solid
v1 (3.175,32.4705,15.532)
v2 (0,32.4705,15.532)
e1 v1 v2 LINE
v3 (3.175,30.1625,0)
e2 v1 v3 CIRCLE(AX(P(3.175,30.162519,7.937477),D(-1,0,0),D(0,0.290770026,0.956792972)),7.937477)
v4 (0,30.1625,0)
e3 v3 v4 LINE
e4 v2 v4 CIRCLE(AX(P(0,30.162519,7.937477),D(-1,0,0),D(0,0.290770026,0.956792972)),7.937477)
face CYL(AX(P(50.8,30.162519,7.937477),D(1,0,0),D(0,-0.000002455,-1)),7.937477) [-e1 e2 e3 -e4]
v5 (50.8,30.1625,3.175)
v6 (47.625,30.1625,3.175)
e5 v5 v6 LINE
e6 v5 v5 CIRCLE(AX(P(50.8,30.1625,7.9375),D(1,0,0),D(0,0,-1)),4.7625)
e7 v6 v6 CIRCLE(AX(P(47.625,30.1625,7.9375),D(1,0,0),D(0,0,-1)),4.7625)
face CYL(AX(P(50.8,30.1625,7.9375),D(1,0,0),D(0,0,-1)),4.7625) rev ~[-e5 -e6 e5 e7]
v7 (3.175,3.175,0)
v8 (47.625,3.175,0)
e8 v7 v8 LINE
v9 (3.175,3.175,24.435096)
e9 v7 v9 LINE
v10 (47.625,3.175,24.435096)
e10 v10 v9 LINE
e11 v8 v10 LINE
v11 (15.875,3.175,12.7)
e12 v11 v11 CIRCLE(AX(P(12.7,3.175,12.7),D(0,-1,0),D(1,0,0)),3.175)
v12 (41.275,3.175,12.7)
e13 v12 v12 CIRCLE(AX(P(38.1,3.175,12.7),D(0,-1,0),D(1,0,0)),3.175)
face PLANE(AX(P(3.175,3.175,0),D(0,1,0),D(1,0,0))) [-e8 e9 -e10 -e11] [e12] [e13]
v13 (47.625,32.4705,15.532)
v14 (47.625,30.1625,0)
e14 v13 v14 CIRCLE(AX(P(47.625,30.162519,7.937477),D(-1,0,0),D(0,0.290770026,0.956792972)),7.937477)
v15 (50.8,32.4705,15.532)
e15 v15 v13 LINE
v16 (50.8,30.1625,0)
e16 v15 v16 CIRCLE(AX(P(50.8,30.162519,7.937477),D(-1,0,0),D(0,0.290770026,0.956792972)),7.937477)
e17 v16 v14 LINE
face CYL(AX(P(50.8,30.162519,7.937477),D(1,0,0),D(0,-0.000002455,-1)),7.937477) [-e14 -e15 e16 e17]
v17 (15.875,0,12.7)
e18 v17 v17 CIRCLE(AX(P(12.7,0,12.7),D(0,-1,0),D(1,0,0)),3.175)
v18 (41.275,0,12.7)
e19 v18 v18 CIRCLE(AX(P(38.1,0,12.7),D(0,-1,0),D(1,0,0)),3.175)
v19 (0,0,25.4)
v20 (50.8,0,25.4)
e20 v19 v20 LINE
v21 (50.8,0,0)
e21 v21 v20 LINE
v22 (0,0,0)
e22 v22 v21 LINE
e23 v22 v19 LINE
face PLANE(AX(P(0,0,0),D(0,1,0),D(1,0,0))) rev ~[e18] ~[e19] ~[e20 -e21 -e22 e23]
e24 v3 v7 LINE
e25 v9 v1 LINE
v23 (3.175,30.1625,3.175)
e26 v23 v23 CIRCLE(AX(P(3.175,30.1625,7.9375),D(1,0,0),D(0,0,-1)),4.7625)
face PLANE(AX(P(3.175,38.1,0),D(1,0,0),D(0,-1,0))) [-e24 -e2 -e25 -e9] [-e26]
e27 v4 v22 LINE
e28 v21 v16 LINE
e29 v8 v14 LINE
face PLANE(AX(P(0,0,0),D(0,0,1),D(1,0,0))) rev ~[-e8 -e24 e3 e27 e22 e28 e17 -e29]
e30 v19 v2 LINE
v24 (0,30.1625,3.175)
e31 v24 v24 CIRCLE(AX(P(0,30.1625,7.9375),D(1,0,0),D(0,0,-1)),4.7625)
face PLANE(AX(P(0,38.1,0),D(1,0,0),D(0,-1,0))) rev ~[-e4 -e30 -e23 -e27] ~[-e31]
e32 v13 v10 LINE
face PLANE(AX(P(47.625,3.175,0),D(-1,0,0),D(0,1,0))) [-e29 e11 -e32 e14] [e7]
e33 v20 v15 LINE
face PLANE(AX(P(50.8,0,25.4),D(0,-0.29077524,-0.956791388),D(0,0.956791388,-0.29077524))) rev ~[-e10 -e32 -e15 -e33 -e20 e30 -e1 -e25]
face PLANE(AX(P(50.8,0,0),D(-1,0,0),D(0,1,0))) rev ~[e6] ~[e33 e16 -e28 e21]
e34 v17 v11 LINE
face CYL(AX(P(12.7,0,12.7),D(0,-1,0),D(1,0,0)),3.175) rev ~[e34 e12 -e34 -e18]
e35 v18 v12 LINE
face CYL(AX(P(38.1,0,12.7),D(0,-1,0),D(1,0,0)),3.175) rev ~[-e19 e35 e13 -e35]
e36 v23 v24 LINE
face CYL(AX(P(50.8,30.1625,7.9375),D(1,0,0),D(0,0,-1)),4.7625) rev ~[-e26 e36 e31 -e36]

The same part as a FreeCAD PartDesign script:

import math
import FreeCAD as App
import Part
import Sketcher
Q = App.Units.Quantity


def add_polygon(sketch, points):
    """Adds a closed chain of lines whose ends are joined by coincident constraints."""
    first, n = sketch.GeometryCount, len(points)
    for a, b in zip(points, points[1:] + points[:1]):
        sketch.addGeometry(Part.LineSegment(App.Vector(*a, 0), App.Vector(*b, 0)), False)
    for i in range(n):
        sketch.addConstraint(Sketcher.Constraint("Coincident", first + i, 2, first + (i + 1) % n, 1))

doc = App.newDocument("Part")
body = doc.addObject("PartDesign::Body", "Body")

# Sketch on XY plane
sketch1 = body.newObject("Sketcher::SketchObject", "Sketch")
sketch1.AttachmentSupport = (doc.getObject("XY_Plane"), [""])
sketch1.MapMode = "FlatFace"
add_polygon(sketch1, [(0, 38.1), (0, 0), (50.8, 0), (50.8, 38.1), (47.6, 38.1), (47.6, 3.2), (3.2, 3.2), (3.2, 38.1)])  # lines 0-7
sketch1.addConstraint([
    Sketcher.Constraint("Vertical", 0),
    Sketcher.Constraint("Horizontal", 1),
    Sketcher.Constraint("Vertical", 2),
    Sketcher.Constraint("Horizontal", 3),
    Sketcher.Constraint("Vertical", 4),
    Sketcher.Constraint("Horizontal", 5),
    Sketcher.Constraint("Vertical", 6),
    Sketcher.Constraint("Horizontal", 7),
    Sketcher.Constraint("Coincident", 0, 2, -1, 1),
    Sketcher.Constraint("Horizontal", 3, 2, 6, 2),
    Sketcher.Constraint("Equal", 3, 7),
    Sketcher.Constraint("DistanceX", 1, 1, 1, 2, Q("2 in")),
    Sketcher.Constraint("DistanceY", 0, 2, 0, 1, Q("1.5 in")),
    Sketcher.Constraint("DistanceX", 3, 2, 3, 1, Q("0.125 in")),
    Sketcher.Constraint("DistanceY", -1, 1, 4, 2, Q("0.125 in")),
])
pad1 = body.newObject("PartDesign::Pad", "Pad")
pad1.Profile = sketch1
pad1.Length = Q("1 in")

# Sketch on YZ plane
sketch2 = body.newObject("Sketcher::SketchObject", "Sketch001")
sketch2.AttachmentSupport = (doc.getObject("YZ_Plane"), [""])
sketch2.MapMode = "FlatFace"
sketch2.AttachmentOffset = App.Placement(App.Vector(0, 0, 2 * 25.4), App.Rotation())
sketch2.addGeometry([
    Part.LineSegment(App.Vector(38.1, 7.9, 0), App.Vector(38.1, 25.4, 0)),  # 0
    Part.LineSegment(App.Vector(38.1, 25.4, 0), App.Vector(0, 25.4, 0)),  # 1
    Part.LineSegment(App.Vector(0, 25.4, 0), App.Vector(32.5, 15.5, 0)),  # 2
    Part.ArcOfCircle(Part.Circle(App.Vector(30.2, 7.9, 0), App.Vector(0, 0, 1), 7.9), math.radians(0), math.radians(73)),  # 3
    Part.LineSegment(App.Vector(38.1, 0, 0), App.Vector(38.1, 7.9, 0)),  # 4
    Part.ArcOfCircle(Part.Circle(App.Vector(30.2, 7.9, 0), App.Vector(0, 0, 1), 7.9), math.radians(-90), math.radians(0)),  # 5
    Part.LineSegment(App.Vector(30.2, 0, 0), App.Vector(38.1, 0, 0)),  # 6
    Part.Circle(App.Vector(30.2, 7.9, 0), App.Vector(0, 0, 1), 4.8),  # 7
], False)
sketch2.addConstraint([
    Sketcher.Constraint("Coincident", 0, 2, 1, 1),
    Sketcher.Constraint("Coincident", 1, 2, 2, 1),
    Sketcher.Constraint("Tangent", 2, 2, 3, 2),
    Sketcher.Constraint("Tangent", 3, 1, 0, 1),
    Sketcher.Constraint("Tangent", 4, 2, 5, 2),
    Sketcher.Constraint("Tangent", 5, 1, 6, 1),
    Sketcher.Constraint("Coincident", 6, 2, 4, 1),
    Sketcher.Constraint("Vertical", 0),
    Sketcher.Constraint("Horizontal", 1),
    Sketcher.Constraint("Vertical", 4),
    Sketcher.Constraint("Horizontal", 6),
    Sketcher.Constraint("Coincident", 5, 3, 3, 3),
    Sketcher.Constraint("Coincident", 7, 3, 3, 3),
    Sketcher.Constraint("Equal", 3, 5),
    Sketcher.Constraint("PointOnObject", 1, 2, -2),
    Sketcher.Constraint("PointOnObject", 5, 1, -1),
    Sketcher.Constraint("Diameter", 7, Q("0.375 in")),
    Sketcher.Constraint("DistanceY", 0, 1, 0, 2, Q("0.6875 in")),
    Sketcher.Constraint("DistanceX", 1, 2, 1, 1, Q("1.5 in")),
    Sketcher.Constraint("DistanceX", -1, 1, 3, 3, Q("1.1875 in")),
])
pocket1 = body.newObject("PartDesign::Pocket", "Pocket")
pocket1.Profile = sketch2
pocket1.Type = "ThroughAll"

# Sketch on XZ plane
sketch3 = body.newObject("Sketcher::SketchObject", "Sketch002")
sketch3.AttachmentSupport = (doc.getObject("XZ_Plane"), [""])
sketch3.MapMode = "FlatFace"
sketch3.addGeometry([
    Part.Circle(App.Vector(12.7, 12.7, 0), App.Vector(0, 0, 1), 3.2),
    Part.Circle(App.Vector(38.1, 12.7, 0), App.Vector(0, 0, 1), 3.2),
], False)
sketch3.addConstraint([
    Sketcher.Constraint("Equal", 0, 1),
    Sketcher.Constraint("Horizontal", 0, 3, 1, 3),
    Sketcher.Constraint("Diameter", 0, Q("0.25 in")),
    Sketcher.Constraint("DistanceX", -1, 1, 0, 3, Q("0.5 in")),
    Sketcher.Constraint("DistanceY", -1, 1, 0, 3, Q("0.5 in")),
    Sketcher.Constraint("DistanceX", 0, 3, 1, 3, Q("1 in")),
])
pocket2 = body.newObject("PartDesign::Pocket", "Pocket001")
pocket2.Profile = sketch3
pocket2.Type = "ThroughAll"

doc.recompute()
